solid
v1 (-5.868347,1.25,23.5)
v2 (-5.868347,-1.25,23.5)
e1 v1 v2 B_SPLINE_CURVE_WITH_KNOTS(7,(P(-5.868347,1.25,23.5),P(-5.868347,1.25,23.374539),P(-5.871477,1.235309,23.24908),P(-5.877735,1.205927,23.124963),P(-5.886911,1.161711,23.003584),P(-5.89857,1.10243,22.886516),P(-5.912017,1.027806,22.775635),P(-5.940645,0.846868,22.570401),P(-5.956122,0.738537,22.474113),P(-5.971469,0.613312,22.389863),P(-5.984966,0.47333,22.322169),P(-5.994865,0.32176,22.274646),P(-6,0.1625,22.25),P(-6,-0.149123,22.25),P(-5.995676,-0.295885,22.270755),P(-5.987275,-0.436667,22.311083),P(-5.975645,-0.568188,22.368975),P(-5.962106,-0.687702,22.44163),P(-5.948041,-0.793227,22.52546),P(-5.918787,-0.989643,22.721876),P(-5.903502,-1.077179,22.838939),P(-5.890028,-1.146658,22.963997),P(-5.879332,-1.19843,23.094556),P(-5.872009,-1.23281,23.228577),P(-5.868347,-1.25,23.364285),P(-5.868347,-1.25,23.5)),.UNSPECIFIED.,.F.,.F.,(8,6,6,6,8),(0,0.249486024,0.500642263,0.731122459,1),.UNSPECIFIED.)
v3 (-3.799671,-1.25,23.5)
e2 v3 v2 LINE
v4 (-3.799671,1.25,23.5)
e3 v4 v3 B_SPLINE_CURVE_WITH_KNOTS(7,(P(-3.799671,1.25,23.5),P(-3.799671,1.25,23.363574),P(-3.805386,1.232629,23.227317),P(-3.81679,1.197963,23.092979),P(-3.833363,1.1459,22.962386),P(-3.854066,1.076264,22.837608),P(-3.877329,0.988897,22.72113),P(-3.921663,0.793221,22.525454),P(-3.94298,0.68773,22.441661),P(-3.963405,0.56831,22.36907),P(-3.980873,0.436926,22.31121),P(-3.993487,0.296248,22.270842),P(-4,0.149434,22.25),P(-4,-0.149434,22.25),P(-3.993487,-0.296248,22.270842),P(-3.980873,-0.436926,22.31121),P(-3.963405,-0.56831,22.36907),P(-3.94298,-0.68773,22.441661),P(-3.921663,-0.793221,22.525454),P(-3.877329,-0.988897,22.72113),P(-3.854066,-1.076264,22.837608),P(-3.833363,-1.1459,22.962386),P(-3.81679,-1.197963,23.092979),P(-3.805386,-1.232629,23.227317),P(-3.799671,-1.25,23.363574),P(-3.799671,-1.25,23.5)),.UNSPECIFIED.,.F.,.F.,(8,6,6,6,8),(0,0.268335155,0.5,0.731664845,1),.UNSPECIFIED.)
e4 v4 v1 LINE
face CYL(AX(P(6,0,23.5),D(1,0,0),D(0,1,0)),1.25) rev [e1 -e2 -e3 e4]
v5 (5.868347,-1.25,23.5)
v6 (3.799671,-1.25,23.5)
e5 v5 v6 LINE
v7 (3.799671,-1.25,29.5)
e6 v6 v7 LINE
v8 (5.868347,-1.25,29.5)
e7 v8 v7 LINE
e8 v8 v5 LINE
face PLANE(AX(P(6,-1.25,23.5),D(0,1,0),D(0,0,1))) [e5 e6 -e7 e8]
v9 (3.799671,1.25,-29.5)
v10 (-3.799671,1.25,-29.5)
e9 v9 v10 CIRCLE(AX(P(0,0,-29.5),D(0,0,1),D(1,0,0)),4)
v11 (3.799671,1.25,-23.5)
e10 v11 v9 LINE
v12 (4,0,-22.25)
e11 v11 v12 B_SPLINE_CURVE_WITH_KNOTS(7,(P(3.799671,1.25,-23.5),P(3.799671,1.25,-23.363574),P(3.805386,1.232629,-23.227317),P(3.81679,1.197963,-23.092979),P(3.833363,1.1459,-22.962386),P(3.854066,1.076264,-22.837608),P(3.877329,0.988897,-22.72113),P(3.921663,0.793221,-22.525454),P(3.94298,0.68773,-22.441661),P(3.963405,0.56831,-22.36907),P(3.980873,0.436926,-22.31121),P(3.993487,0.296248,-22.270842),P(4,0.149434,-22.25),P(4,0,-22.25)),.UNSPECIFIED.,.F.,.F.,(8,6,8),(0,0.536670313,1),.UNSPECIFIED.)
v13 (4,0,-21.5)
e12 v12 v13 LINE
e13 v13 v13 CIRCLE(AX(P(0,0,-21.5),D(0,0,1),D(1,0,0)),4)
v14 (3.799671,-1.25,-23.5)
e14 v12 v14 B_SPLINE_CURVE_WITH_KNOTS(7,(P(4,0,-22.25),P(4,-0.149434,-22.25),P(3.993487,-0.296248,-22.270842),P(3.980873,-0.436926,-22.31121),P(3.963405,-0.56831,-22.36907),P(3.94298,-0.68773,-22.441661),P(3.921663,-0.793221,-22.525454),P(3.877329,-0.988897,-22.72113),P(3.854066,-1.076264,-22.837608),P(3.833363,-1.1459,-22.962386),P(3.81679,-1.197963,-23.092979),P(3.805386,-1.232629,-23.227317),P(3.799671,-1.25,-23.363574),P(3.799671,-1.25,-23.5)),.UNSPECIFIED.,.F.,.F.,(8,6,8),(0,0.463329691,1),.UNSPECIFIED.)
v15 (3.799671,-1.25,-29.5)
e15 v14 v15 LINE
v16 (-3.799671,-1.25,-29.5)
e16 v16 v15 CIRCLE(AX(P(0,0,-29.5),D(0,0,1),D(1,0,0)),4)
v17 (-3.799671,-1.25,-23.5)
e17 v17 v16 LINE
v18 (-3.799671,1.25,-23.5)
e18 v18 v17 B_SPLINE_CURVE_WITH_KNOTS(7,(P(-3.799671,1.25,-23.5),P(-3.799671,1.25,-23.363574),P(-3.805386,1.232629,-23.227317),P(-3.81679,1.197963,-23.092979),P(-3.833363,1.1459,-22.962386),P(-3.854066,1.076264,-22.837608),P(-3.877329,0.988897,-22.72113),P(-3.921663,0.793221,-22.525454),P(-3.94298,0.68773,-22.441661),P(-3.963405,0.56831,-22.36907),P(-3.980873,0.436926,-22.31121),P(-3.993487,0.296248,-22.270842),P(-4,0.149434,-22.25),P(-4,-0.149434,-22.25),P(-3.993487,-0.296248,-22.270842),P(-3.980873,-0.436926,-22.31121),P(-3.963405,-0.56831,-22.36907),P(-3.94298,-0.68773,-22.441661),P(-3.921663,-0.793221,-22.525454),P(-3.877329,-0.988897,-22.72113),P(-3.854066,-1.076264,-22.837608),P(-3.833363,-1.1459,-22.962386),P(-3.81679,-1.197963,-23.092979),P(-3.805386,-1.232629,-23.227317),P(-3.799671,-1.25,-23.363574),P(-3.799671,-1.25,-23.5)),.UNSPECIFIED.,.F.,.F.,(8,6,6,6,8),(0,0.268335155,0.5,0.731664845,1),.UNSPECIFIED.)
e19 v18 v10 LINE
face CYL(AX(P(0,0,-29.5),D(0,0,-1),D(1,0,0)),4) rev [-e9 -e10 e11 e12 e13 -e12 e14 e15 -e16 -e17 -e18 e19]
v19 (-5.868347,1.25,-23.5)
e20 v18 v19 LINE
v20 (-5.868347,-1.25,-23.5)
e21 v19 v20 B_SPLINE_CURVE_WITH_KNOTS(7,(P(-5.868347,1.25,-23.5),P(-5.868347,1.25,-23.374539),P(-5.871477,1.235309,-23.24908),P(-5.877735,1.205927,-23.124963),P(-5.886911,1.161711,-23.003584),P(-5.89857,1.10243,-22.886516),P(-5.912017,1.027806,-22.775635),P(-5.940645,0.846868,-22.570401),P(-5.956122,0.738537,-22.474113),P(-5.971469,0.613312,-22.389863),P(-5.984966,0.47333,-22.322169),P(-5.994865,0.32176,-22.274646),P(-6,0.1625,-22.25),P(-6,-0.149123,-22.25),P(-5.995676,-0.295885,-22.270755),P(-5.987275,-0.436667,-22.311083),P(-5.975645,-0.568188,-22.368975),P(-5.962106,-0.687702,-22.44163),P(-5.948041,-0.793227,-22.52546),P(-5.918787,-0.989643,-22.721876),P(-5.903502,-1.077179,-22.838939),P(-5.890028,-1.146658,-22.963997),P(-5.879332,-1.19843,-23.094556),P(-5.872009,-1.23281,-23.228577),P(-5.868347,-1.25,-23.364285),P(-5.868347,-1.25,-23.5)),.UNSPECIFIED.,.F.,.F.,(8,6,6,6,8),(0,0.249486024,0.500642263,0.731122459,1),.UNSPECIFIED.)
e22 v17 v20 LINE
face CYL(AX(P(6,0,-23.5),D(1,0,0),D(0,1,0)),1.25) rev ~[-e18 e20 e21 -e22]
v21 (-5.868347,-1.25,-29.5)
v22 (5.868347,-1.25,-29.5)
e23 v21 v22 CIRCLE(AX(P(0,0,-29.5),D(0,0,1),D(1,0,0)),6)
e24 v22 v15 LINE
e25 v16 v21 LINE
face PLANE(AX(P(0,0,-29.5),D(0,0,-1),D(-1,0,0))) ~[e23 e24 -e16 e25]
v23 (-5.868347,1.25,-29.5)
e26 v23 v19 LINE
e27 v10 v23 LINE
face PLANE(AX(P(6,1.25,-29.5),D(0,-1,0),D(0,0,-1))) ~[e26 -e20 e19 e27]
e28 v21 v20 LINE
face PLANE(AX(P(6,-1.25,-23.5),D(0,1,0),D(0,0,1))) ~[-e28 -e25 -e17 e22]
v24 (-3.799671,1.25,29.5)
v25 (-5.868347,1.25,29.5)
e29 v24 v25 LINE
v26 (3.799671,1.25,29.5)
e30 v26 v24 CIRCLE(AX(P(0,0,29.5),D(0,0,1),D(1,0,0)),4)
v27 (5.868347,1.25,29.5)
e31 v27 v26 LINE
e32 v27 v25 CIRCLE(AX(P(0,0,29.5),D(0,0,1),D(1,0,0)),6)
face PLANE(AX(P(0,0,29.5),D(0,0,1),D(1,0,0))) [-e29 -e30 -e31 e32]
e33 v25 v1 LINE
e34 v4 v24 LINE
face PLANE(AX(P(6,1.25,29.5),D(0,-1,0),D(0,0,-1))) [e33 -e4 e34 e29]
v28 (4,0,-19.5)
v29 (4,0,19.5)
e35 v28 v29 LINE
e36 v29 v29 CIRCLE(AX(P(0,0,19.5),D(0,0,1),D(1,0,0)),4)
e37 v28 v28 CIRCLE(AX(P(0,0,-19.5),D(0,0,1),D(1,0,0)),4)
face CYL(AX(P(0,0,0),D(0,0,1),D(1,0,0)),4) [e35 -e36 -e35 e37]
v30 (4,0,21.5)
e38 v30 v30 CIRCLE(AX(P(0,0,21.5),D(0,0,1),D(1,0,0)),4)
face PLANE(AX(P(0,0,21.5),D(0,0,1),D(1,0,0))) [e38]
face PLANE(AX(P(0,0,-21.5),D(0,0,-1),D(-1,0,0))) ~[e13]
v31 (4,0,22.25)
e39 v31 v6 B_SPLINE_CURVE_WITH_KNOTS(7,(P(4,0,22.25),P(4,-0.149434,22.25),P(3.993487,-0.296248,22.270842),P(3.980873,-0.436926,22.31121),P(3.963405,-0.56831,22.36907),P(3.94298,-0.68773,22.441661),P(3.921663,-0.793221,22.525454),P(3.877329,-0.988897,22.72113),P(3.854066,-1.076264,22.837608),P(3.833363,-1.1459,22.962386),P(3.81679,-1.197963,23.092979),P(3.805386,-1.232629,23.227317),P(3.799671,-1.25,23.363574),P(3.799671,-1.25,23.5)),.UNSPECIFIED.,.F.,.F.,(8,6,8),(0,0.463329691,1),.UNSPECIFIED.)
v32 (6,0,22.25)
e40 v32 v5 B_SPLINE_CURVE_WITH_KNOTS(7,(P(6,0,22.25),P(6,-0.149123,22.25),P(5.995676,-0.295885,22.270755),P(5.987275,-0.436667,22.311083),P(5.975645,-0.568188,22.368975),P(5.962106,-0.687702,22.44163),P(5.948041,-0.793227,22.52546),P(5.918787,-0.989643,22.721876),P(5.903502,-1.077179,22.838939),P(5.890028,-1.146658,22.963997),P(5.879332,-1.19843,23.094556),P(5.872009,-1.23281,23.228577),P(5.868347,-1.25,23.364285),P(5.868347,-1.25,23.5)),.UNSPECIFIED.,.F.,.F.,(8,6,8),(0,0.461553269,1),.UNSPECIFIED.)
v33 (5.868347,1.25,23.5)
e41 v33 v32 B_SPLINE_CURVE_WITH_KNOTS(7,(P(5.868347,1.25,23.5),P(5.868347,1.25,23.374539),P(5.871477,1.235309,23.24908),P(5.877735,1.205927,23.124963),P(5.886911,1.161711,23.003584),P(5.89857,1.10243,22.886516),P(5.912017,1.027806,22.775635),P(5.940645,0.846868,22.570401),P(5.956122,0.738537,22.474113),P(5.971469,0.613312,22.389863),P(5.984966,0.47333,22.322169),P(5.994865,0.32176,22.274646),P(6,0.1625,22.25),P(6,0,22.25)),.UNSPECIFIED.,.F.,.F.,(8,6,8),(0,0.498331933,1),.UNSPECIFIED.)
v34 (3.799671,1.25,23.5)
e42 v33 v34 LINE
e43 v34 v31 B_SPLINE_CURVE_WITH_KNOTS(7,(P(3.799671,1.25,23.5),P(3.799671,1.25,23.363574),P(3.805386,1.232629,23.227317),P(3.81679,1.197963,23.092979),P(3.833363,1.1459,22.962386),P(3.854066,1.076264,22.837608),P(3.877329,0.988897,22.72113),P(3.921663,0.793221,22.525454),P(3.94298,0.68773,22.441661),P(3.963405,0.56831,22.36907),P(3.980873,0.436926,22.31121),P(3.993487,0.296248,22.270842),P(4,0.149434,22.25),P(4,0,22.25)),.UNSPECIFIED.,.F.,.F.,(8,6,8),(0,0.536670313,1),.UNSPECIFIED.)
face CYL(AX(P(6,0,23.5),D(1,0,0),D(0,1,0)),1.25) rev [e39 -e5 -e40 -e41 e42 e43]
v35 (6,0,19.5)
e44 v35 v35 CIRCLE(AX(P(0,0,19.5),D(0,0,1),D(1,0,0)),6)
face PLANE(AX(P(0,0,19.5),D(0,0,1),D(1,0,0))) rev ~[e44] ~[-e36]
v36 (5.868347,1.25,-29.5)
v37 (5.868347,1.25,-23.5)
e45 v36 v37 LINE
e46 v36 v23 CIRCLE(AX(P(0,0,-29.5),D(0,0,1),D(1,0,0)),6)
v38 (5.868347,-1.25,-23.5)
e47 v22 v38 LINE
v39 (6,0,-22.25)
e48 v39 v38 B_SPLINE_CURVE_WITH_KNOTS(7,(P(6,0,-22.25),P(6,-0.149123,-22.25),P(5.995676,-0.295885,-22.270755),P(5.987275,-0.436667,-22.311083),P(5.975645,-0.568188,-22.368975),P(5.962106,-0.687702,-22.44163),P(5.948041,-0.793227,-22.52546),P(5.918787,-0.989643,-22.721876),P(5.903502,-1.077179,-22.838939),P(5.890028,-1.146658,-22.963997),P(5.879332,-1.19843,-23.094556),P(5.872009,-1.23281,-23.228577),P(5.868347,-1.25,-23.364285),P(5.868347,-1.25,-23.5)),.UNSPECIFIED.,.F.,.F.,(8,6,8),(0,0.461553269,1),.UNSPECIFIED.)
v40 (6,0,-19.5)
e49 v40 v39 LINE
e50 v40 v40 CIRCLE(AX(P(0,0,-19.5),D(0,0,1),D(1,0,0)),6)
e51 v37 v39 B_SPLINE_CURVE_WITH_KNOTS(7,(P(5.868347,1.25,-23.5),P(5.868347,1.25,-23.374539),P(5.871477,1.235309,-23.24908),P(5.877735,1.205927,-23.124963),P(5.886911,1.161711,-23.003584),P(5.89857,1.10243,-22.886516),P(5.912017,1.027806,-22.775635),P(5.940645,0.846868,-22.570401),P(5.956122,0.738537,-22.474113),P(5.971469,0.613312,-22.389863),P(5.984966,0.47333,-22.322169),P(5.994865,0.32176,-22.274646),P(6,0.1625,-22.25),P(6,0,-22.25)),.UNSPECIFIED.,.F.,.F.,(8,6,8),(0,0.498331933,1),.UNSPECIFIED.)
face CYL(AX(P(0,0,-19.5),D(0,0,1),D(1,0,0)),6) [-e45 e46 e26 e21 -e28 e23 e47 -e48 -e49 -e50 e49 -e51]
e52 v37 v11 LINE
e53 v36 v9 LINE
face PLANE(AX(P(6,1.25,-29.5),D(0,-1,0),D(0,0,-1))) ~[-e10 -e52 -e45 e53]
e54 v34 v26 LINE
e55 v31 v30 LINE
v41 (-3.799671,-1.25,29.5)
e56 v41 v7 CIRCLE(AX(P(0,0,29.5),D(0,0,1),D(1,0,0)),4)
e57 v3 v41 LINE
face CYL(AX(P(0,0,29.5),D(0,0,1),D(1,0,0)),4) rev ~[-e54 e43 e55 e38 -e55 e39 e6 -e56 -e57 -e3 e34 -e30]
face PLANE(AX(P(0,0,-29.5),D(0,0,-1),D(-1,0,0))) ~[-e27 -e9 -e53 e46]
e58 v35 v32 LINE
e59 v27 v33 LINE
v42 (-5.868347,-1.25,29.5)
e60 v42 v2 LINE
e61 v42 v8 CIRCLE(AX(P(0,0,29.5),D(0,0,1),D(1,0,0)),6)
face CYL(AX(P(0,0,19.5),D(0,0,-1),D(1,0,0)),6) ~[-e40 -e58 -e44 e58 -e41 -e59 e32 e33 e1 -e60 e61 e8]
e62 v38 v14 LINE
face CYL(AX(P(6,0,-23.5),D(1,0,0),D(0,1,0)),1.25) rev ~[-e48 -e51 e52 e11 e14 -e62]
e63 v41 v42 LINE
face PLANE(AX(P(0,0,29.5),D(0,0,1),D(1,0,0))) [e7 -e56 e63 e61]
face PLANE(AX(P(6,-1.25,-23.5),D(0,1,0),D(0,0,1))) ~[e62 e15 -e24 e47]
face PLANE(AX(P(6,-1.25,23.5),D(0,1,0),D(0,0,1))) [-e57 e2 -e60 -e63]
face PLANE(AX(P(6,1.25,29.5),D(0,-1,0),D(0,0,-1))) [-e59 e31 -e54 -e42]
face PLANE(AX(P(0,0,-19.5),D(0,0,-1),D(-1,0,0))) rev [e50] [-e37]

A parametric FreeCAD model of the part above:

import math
import FreeCAD as App
import Part
import Sketcher

V = App.Vector
Q = App.Units.Quantity

doc = App.newDocument("Part")
body = doc.addObject("PartDesign::Body", "Body")

sketch1 = body.newObject("Sketcher::SketchObject", "Sketch")
sketch1.AttachmentSupport = (doc.getObject("XY_Plane"), [""])
sketch1.MapMode = "FlatFace"
sketch1.addGeometry(Part.Circle(V(0, 0, 0), V(0, 0, 1), 4), False)
sketch1.addConstraint(Sketcher.Constraint("Coincident", 0, 3, -1, 1))
sketch1.addConstraint(Sketcher.Constraint("Diameter", 0, Q("8 mm")))
pad1 = body.newObject("PartDesign::Pad", "Pad")
pad1.Profile = sketch1
pad1.Length = 39
pad1.Midplane = True

sketch2 = body.newObject("Sketcher::SketchObject", "Sketch001")
sketch2.AttachmentSupport = (doc.getObject("XY_Plane"), [""])
sketch2.MapMode = "FlatFace"
sketch2.AttachmentOffset = App.Placement(V(0, 0, 19.5), App.Rotation())
sketch2.addGeometry(Part.Circle(V(0, 0, 0), V(0, 0, 1), 6), False)
sketch2.addConstraint(Sketcher.Constraint("Coincident", 0, 3, -1, 1))
sketch2.addConstraint(Sketcher.Constraint("Diameter", 0, Q("12 mm")))
pad2 = body.newObject("PartDesign::Pad", "Pad001")
pad2.Profile = sketch2
pad2.Length = 10

sketch3 = body.newObject("Sketcher::SketchObject", "Sketch002")
sketch3.AttachmentSupport = (doc.getObject("XY_Plane"), [""])
sketch3.MapMode = "FlatFace"
sketch3.AttachmentOffset = App.Placement(V(0, 0, 29.5), App.Rotation())
sketch3.addGeometry(Part.Circle(V(0, 0, 0), V(0, 0, 1), 4), False)
sketch3.addConstraint(Sketcher.Constraint("Coincident", 0, 3, -1, 1))
sketch3.addConstraint(Sketcher.Constraint("Diameter", 0, Q("8 mm")))
pocket1 = body.newObject("PartDesign::Pocket", "Pocket")
pocket1.Profile = sketch3
pocket1.Length = 8

sketch4 = body.newObject("Sketcher::SketchObject", "Sketch003")
sketch4.AttachmentSupport = (doc.getObject("YZ_Plane"), [""])
sketch4.MapMode = "FlatFace"
sketch4.AttachmentOffset = App.Placement(V(0, 0, 6), App.Rotation())
sketch4.addGeometry(Part.LineSegment(V(1.2, 23.5, 0), V(1.2, 29.5, 0)), False)
sketch4.addGeometry(Part.ArcOfCircle(Part.Circle(V(0, 29.5, 0), V(0, 0, 1), 1.2), math.radians(0), math.radians(180)), False)
sketch4.addGeometry(Part.LineSegment(V(-1.2, 29.5, 0), V(-1.2, 23.5, 0)), False)
sketch4.addGeometry(Part.ArcOfCircle(Part.Circle(V(0, 23.5, 0), V(0, 0, 1), 1.2), math.radians(180), math.radians(360)), False)
sketch4.addConstraint(Sketcher.Constraint("Tangent", 0, 2, 1, 1))
sketch4.addConstraint(Sketcher.Constraint("Tangent", 1, 2, 2, 1))
sketch4.addConstraint(Sketcher.Constraint("Tangent", 2, 2, 3, 1))
sketch4.addConstraint(Sketcher.Constraint("Tangent", 3, 2, 0, 1))
sketch4.addConstraint(Sketcher.Constraint("Vertical", 0))
sketch4.addConstraint(Sketcher.Constraint("Vertical", 2))
sketch4.addConstraint(Sketcher.Constraint("PointOnObject", 1, 3, -2))
sketch4.addConstraint(Sketcher.Constraint("DistanceY", 0, 1, 0, 2, Q("6 mm")))
sketch4.addConstraint(Sketcher.Constraint("Radius", 1, Q("1.25 mm")))
sketch4.addConstraint(Sketcher.Constraint("DistanceY", -1, 1, 1, 3, Q("29.5 mm")))
pocket2 = body.newObject("PartDesign::Pocket", "Pocket001")
pocket2.Profile = sketch4
pocket2.Type = "ThroughAll"
doc.recompute()

mirrored = body.newObject("PartDesign::Mirrored", "Mirrored")
mirrored.Originals = [pad2, pocket1, pocket2]
mirrored.MirrorPlane = (doc.getObject("XY_Plane"), [""])
body.Tip = mirrored

doc.recompute()
